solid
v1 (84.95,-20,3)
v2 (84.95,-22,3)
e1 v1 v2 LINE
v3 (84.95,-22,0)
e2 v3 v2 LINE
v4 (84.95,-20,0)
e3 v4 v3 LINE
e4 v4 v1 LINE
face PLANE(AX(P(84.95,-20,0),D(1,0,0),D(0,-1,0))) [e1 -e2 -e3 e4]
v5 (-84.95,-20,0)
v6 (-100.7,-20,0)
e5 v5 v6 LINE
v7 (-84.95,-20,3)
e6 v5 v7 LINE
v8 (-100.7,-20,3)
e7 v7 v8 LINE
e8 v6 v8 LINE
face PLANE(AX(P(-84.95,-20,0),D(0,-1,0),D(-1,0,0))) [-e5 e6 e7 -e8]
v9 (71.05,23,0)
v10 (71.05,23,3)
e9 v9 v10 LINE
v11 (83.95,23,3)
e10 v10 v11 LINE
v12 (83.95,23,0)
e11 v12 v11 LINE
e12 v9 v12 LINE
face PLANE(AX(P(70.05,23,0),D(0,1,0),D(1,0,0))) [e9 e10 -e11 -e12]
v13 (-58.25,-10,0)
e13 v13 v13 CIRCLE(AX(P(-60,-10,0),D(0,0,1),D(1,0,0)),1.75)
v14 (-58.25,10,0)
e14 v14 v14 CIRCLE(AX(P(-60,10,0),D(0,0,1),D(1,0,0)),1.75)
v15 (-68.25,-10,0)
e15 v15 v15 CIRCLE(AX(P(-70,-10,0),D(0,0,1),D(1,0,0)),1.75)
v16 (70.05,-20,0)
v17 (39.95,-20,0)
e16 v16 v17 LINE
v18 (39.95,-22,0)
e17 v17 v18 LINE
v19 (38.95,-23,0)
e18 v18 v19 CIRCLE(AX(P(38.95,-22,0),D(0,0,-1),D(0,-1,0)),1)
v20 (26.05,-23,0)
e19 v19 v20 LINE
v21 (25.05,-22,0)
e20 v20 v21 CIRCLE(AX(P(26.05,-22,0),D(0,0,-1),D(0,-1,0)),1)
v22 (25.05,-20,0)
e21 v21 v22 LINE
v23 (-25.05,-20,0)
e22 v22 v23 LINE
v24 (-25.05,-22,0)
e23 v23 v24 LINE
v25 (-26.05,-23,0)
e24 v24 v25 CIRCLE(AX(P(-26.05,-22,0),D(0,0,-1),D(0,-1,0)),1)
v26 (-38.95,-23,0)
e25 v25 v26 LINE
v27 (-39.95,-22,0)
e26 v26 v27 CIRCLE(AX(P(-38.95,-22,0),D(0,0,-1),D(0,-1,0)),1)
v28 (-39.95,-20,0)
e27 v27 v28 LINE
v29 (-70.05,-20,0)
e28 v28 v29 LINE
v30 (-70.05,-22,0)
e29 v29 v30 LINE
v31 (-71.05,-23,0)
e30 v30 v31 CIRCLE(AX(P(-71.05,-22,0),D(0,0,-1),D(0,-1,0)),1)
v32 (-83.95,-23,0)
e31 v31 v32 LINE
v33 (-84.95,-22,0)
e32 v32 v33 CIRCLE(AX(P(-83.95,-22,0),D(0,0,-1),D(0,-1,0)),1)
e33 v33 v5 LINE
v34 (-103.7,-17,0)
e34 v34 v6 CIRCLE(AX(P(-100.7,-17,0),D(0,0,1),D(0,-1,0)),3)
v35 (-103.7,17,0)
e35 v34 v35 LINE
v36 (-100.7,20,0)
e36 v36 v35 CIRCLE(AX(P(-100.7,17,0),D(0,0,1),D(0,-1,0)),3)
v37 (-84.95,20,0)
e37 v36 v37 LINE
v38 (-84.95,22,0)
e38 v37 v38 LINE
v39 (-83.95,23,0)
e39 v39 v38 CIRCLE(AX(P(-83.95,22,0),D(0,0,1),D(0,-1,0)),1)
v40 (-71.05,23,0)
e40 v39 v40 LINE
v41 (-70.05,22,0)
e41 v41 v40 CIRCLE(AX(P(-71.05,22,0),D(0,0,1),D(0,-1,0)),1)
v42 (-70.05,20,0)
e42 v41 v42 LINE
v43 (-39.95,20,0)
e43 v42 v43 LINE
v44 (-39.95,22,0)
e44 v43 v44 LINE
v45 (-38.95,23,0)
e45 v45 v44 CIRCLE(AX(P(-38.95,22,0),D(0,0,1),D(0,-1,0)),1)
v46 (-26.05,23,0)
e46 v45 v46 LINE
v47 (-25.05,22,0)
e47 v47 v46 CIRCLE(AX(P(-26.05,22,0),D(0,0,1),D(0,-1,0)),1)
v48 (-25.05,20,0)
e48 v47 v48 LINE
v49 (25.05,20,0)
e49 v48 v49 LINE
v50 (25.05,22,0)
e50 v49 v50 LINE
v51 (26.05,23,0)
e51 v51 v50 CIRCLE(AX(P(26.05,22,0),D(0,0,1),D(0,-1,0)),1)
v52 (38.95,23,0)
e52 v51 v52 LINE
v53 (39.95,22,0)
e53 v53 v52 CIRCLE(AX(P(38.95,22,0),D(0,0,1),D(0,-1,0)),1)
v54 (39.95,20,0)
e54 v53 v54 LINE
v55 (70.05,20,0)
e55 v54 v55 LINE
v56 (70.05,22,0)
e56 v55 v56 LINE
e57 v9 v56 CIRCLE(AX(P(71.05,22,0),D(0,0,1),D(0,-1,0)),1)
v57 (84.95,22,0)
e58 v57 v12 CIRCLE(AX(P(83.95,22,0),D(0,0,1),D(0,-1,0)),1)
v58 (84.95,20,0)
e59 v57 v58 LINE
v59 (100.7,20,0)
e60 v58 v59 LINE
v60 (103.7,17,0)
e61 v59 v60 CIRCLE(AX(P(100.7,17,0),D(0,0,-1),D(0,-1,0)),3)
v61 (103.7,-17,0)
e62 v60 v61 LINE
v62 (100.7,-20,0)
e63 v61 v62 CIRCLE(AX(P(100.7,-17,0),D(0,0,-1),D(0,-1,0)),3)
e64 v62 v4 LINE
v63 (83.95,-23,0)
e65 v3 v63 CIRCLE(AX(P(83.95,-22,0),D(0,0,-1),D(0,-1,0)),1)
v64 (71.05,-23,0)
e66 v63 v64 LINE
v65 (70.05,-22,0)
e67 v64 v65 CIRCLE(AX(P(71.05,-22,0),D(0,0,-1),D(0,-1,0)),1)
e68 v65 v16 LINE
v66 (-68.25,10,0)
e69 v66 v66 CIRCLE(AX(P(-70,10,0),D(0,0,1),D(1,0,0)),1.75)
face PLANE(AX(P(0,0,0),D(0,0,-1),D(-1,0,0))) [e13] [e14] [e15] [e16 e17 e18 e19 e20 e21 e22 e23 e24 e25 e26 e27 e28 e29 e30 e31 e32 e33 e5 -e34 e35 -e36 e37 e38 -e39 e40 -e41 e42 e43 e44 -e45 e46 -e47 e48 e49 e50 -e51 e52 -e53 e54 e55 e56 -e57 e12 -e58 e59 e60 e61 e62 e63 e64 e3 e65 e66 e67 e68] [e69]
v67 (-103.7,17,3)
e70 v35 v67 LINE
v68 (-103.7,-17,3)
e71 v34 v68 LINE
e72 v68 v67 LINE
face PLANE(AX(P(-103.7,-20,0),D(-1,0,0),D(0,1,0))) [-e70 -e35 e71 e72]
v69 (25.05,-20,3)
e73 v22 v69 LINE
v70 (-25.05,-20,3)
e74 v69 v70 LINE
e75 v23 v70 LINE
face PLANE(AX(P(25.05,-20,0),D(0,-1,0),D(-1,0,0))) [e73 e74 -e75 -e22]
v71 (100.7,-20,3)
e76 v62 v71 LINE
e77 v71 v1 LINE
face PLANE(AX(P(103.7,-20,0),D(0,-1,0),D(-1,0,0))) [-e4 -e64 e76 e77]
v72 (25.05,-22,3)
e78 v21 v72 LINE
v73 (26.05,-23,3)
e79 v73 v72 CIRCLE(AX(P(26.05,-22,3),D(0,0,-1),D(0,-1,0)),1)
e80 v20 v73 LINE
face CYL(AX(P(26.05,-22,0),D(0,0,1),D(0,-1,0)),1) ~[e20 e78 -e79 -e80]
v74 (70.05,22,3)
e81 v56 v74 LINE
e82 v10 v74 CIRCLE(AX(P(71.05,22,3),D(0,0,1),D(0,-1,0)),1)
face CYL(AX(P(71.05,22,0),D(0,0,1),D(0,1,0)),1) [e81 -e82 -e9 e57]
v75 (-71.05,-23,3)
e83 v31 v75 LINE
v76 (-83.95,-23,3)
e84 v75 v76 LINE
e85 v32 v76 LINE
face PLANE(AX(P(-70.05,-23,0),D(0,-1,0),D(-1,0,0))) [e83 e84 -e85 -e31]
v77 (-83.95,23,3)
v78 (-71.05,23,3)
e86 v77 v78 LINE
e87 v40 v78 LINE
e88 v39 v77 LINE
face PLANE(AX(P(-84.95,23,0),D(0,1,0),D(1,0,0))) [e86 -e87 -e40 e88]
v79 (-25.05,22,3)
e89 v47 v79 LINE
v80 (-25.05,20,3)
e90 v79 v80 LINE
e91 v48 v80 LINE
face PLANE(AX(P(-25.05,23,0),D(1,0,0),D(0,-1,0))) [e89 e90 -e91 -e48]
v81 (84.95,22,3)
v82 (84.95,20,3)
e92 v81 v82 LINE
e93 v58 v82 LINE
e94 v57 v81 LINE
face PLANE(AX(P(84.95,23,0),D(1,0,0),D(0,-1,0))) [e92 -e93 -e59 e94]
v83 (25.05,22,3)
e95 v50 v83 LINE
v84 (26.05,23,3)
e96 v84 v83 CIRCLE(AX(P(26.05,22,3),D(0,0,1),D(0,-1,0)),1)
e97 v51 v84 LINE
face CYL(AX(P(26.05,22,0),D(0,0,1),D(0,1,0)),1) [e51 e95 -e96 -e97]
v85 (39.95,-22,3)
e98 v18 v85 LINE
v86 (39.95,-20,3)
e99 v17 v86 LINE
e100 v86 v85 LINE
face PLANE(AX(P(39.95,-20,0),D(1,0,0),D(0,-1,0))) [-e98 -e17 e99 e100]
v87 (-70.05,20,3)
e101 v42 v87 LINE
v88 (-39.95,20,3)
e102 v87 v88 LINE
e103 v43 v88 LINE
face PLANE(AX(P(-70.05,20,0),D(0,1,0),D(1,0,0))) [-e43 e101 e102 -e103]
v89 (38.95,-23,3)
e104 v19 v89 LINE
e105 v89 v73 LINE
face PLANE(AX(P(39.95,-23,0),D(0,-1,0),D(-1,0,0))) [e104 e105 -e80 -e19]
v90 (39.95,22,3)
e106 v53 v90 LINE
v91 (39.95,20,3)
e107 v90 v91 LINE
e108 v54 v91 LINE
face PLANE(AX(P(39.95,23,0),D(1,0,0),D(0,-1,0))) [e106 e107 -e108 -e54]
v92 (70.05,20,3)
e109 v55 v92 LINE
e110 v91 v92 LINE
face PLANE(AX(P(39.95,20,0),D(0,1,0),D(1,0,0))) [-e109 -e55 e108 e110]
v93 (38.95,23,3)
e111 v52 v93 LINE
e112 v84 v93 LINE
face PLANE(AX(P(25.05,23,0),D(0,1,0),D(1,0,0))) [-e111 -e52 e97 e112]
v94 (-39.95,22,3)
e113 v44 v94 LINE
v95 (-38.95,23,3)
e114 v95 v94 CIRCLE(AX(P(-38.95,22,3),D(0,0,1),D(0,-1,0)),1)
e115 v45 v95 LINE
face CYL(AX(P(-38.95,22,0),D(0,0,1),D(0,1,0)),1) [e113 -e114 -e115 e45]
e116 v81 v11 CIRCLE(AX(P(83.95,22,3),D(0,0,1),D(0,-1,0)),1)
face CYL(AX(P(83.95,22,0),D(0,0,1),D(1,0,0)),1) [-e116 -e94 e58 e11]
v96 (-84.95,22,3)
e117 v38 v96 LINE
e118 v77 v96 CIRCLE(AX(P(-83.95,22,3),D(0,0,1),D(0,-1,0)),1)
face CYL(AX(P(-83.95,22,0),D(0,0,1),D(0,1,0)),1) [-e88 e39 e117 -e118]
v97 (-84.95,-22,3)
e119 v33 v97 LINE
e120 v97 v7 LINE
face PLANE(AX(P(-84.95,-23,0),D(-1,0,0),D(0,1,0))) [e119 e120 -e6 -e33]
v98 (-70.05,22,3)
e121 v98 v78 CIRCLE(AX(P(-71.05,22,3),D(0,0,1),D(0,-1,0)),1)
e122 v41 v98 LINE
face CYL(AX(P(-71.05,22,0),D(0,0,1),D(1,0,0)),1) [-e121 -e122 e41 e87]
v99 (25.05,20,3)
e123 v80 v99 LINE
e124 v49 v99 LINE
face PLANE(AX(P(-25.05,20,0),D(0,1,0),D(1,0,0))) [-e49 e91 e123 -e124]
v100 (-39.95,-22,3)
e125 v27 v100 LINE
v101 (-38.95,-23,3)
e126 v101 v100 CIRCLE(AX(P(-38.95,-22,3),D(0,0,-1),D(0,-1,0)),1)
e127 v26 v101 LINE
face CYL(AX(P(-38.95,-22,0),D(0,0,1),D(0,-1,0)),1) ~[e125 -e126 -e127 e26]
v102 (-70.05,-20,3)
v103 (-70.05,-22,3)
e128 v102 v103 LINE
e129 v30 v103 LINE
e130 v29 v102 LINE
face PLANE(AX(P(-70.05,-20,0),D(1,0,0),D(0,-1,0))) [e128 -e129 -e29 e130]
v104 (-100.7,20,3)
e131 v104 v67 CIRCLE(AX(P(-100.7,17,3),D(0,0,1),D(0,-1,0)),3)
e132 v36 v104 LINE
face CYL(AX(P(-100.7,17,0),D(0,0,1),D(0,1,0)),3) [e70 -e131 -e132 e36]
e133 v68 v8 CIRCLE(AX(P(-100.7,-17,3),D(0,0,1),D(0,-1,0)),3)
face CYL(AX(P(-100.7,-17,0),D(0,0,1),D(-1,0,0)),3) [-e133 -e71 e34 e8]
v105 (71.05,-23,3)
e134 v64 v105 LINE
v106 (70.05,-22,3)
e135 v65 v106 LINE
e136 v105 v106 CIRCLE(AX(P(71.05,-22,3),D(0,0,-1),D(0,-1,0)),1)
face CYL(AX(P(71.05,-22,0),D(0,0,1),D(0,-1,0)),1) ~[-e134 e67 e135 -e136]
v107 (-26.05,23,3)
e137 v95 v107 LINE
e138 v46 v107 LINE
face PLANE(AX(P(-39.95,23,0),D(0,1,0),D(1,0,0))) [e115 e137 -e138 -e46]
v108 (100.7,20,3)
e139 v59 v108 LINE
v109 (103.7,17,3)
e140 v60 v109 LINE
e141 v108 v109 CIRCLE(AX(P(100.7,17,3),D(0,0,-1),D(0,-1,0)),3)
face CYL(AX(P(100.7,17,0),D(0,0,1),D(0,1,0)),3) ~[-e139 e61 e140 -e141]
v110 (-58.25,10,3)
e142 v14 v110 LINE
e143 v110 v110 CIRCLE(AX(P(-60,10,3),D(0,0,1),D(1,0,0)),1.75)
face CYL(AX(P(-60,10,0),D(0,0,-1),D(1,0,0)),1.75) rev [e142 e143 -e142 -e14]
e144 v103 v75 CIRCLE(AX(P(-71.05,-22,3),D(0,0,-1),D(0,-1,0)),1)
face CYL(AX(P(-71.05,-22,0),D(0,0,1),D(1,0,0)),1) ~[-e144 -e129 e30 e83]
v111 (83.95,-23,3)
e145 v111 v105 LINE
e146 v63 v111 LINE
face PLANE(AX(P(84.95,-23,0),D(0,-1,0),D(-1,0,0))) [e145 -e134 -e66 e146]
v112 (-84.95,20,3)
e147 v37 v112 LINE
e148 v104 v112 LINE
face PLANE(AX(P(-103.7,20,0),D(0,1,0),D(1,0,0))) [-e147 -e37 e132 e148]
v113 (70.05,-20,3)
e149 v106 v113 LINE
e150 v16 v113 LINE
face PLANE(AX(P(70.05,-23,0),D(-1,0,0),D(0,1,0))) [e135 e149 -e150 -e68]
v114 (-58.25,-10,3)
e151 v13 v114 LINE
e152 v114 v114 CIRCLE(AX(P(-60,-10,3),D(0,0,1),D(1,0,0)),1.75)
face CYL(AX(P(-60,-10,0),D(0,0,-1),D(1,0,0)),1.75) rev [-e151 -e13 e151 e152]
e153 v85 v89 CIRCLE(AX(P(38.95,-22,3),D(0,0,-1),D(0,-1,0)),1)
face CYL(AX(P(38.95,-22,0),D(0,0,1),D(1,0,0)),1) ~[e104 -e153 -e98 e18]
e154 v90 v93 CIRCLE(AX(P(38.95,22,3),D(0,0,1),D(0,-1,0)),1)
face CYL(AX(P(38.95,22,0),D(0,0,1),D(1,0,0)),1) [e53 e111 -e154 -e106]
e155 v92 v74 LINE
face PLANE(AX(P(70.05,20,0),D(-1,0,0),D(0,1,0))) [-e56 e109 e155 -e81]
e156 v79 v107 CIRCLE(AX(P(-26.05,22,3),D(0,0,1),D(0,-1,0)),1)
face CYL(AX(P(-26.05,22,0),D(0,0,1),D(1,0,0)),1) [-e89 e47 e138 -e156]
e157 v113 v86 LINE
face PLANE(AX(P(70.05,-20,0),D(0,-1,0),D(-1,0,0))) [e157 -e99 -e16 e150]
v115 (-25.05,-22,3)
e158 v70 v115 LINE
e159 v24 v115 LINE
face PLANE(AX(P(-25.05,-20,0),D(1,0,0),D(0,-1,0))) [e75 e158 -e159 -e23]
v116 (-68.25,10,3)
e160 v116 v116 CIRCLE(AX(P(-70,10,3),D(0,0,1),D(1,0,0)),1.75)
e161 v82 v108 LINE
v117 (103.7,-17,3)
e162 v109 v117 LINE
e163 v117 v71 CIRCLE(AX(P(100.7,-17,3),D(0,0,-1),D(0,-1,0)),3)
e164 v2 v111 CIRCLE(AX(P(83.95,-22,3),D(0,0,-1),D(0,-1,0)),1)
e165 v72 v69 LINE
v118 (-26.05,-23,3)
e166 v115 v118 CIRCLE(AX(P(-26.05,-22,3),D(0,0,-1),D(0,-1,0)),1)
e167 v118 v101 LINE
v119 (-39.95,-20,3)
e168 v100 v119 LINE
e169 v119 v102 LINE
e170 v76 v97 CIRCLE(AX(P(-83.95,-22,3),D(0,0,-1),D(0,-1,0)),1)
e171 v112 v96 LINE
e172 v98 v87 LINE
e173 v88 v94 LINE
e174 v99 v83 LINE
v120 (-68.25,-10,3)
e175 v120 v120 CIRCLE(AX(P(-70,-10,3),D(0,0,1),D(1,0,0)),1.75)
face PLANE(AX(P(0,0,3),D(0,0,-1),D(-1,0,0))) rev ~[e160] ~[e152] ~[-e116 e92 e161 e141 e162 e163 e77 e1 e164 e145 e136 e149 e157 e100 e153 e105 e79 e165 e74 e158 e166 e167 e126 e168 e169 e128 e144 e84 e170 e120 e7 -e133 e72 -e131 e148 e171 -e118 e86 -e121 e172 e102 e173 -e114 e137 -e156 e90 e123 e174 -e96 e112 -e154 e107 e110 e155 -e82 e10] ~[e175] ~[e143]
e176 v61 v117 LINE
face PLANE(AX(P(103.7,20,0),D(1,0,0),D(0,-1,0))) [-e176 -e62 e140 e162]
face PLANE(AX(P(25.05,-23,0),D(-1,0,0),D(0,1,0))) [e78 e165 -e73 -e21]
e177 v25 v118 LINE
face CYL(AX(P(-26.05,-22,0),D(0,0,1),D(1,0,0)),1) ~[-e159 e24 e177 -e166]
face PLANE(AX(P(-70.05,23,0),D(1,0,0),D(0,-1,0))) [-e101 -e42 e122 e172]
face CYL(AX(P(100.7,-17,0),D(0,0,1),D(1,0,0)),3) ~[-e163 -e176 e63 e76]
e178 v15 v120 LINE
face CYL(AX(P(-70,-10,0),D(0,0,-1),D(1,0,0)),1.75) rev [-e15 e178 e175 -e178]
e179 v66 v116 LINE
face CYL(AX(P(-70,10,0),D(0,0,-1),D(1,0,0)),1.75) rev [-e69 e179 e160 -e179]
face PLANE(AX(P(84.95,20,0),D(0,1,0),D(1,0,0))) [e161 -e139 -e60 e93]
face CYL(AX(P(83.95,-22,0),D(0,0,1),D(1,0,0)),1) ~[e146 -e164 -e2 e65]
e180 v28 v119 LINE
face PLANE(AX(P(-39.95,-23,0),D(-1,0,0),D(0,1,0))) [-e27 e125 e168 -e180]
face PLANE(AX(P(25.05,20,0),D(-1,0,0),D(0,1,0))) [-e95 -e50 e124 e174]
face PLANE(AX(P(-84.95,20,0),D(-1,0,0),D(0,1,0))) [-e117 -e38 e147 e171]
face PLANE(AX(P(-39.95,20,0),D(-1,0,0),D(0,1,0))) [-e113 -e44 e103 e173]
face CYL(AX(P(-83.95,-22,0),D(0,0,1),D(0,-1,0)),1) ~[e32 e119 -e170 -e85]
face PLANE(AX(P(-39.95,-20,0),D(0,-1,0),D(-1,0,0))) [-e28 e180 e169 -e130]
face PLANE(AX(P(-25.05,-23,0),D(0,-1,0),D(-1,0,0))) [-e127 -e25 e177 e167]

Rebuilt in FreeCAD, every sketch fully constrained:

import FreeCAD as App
import Part
import Sketcher

V = App.Vector
Q = App.Units.Quantity


def edges_at(feature, points):
    """Names of the edges that pass closest to the given points."""
    edges = feature.Shape.Edges
    near = lambda p: min(range(len(edges)), key=lambda i: edges[i].distToShape(Part.Vertex(*p))[0])
    return sorted({f"Edge{near(p) + 1}" for p in points})


def add_polygon(sketch, points):
    """Adds a closed chain of lines whose ends are joined by coincident constraints."""
    first, n = sketch.GeometryCount, len(points)
    for a, b in zip(points, points[1:] + points[:1]):
        sketch.addGeometry(Part.LineSegment(App.Vector(*a, 0), App.Vector(*b, 0)), False)
    for i in range(n):
        sketch.addConstraint(Sketcher.Constraint("Coincident", first + i, 2, first + (i + 1) % n, 1))

doc = App.newDocument("Part")
body = doc.addObject("PartDesign::Body", "Body")

sketch1 = body.newObject("Sketcher::SketchObject", "Sketch")
sketch1.AttachmentSupport = (doc.getObject("XY_Plane"), [""])
sketch1.MapMode = "FlatFace"
add_polygon(sketch1, [(40, 23), (25.1, 23), (25.1, 20), (-25.1, 20), (-25.1, 23), (-40, 23), (-40, 20), (-70, 20), (-70, 23), (-85, 23), (-85, 20), (-103.7, 20), (-103.7, -20), (-85, -20), (-85, -23), (-70, -23), (-70, -20), (-40, -20), (-40, -23), (-25.1, -23), (-25.1, -20), (25.1, -20), (25.1, -23), (40, -23), (40, -20), (70, -20), (70, -23), (85, -23), (85, -20), (103.7, -20), (103.7, 20), (85, 20), (85, 23), (70, 23), (70, 20), (40, 20)])
sketch1.addGeometry(Part.Circle(V(-60, -10, 0), V(0, 0, 1), 1.8), False)
sketch1.addGeometry(Part.Circle(V(-70, -10, 0), V(0, 0, 1), 1.8), False)
sketch1.addGeometry(Part.Circle(V(-60, 10, 0), V(0, 0, 1), 1.8), False)
sketch1.addGeometry(Part.Circle(V(-70, 10, 0), V(0, 0, 1), 1.8), False)
sketch1.addConstraint(Sketcher.Constraint("Horizontal", 0))
sketch1.addConstraint(Sketcher.Constraint("Vertical", 1))
sketch1.addConstraint(Sketcher.Constraint("Horizontal", 2))
sketch1.addConstraint(Sketcher.Constraint("Vertical", 3))
sketch1.addConstraint(Sketcher.Constraint("Horizontal", 4))
sketch1.addConstraint(Sketcher.Constraint("Vertical", 5))
sketch1.addConstraint(Sketcher.Constraint("Horizontal", 6))
sketch1.addConstraint(Sketcher.Constraint("Vertical", 7))
sketch1.addConstraint(Sketcher.Constraint("Horizontal", 8))
sketch1.addConstraint(Sketcher.Constraint("Vertical", 9))
sketch1.addConstraint(Sketcher.Constraint("Horizontal", 10))
sketch1.addConstraint(Sketcher.Constraint("Vertical", 11))
sketch1.addConstraint(Sketcher.Constraint("Horizontal", 12))
sketch1.addConstraint(Sketcher.Constraint("Vertical", 13))
sketch1.addConstraint(Sketcher.Constraint("Horizontal", 14))
sketch1.addConstraint(Sketcher.Constraint("Vertical", 15))
sketch1.addConstraint(Sketcher.Constraint("Horizontal", 16))
sketch1.addConstraint(Sketcher.Constraint("Vertical", 17))
sketch1.addConstraint(Sketcher.Constraint("Horizontal", 18))
sketch1.addConstraint(Sketcher.Constraint("Vertical", 19))
sketch1.addConstraint(Sketcher.Constraint("Horizontal", 20))
sketch1.addConstraint(Sketcher.Constraint("Vertical", 21))
sketch1.addConstraint(Sketcher.Constraint("Horizontal", 22))
sketch1.addConstraint(Sketcher.Constraint("Vertical", 23))
sketch1.addConstraint(Sketcher.Constraint("Horizontal", 24))
sketch1.addConstraint(Sketcher.Constraint("Vertical", 25))
sketch1.addConstraint(Sketcher.Constraint("Horizontal", 26))
sketch1.addConstraint(Sketcher.Constraint("Vertical", 27))
sketch1.addConstraint(Sketcher.Constraint("Horizontal", 28))
sketch1.addConstraint(Sketcher.Constraint("Vertical", 29))
sketch1.addConstraint(Sketcher.Constraint("Horizontal", 30))
sketch1.addConstraint(Sketcher.Constraint("Vertical", 31))
sketch1.addConstraint(Sketcher.Constraint("Horizontal", 32))
sketch1.addConstraint(Sketcher.Constraint("Vertical", 33))
sketch1.addConstraint(Sketcher.Constraint("Horizontal", 34))
sketch1.addConstraint(Sketcher.Constraint("Vertical", 35))
sketch1.addConstraint(Sketcher.Constraint("Equal", 36, 37))
sketch1.addConstraint(Sketcher.Constraint("Equal", 37, 38))
sketch1.addConstraint(Sketcher.Constraint("Equal", 38, 39))
sketch1.addConstraint(Sketcher.Constraint("Symmetric", 0, 2, 18, 2, -1, 1))
sketch1.addConstraint(Sketcher.Constraint("Symmetric", 2, 2, 20, 2, -1, 1))
sketch1.addConstraint(Sketcher.Constraint("Symmetric", 4, 2, 22, 2, -1, 1))
sketch1.addConstraint(Sketcher.Constraint("Symmetric", 6, 2, 24, 2, -1, 1))
sketch1.addConstraint(Sketcher.Constraint("Symmetric", 8, 2, 26, 2, -1, 1))
sketch1.addConstraint(Sketcher.Constraint("Symmetric", 10, 2, 28, 2, -1, 1))
sketch1.addConstraint(Sketcher.Constraint("Symmetric", 12, 2, 30, 2, -1, 1))
sketch1.addConstraint(Sketcher.Constraint("Symmetric", 14, 2, 32, 2, -1, 1))
sketch1.addConstraint(Sketcher.Constraint("Symmetric", 16, 2, 34, 2, -1, 1))
sketch1.addConstraint(Sketcher.Constraint("Symmetric", 0, 2, 3, 2, -2))
sketch1.addConstraint(Sketcher.Constraint("Symmetric", 16, 2, 23, 2, -2))
sketch1.addConstraint(Sketcher.Constraint("Symmetric", 14, 2, 25, 2, -2))
sketch1.addConstraint(Sketcher.Constraint("Symmetric", 12, 2, 27, 2, -2))
sketch1.addConstraint(Sketcher.Constraint("Symmetric", 36, 3, 38, 3, -1))
sketch1.addConstraint(Sketcher.Constraint("Symmetric", 37, 3, 39, 3, -1))
sketch1.addConstraint(Sketcher.Constraint("Horizontal", 36, 3, 37, 3))
sketch1.addConstraint(Sketcher.Constraint("Horizontal", 2, 2, 5, 2))
sketch1.addConstraint(Sketcher.Constraint("Horizontal", 4, 2, 7, 2))
sketch1.addConstraint(Sketcher.Constraint("Horizontal", 6, 2, 9, 2))
sketch1.addConstraint(Sketcher.Constraint("Equal", 4, 8))
sketch1.addConstraint(Sketcher.Constraint("Diameter", 36, Q("3.5 mm")))
sketch1.addConstraint(Sketcher.Constraint("DistanceY", 1, 2, 1, 1, Q("3 mm")))
sketch1.addConstraint(Sketcher.Constraint("DistanceY", 11, 2, 11, 1, Q("40 mm")))
sketch1.addConstraint(Sketcher.Constraint("DistanceX", 0, 2, 0, 1, Q("14.9 mm")))
sketch1.addConstraint(Sketcher.Constraint("DistanceX", 2, 2, 2, 1, Q("50.1 mm")))
sketch1.addConstraint(Sketcher.Constraint("DistanceX", 6, 2, 6, 1, Q("30.1 mm")))
sketch1.addConstraint(Sketcher.Constraint("DistanceX", 36, 3, -1, 1, Q("60 mm")))
sketch1.addConstraint(Sketcher.Constraint("DistanceY", 36, 3, -1, 1, Q("10 mm")))
sketch1.addConstraint(Sketcher.Constraint("DistanceX", 37, 3, -1, 1, Q("70 mm")))
sketch1.addConstraint(Sketcher.Constraint("DistanceX", 10, 2, 10, 1, Q("18.75 mm")))
pad1 = body.newObject("PartDesign::Pad", "Pad")
pad1.Profile = sketch1
pad1.Length = 3
doc.recompute()

fillet = body.newObject("PartDesign::Fillet", "Fillet")
fillet.Base = (pad1, edges_at(pad1, [
    (-103.7, 20, 1.5),
    (103.7, 20, 1.5),
    (103.7, -20, 1.5),
    (-103.7, -20, 1.5),
]))
fillet.Radius = 3
doc.recompute()

fillet2 = body.newObject("PartDesign::Fillet", "Fillet001")
fillet2.Base = (fillet, edges_at(fillet, [
    (-84.95, 23, 1.5),
    (-70.05, 23, 1.5),
    (-84.95, -23, 1.5),
    (-39.95, 23, 1.5),
    (-70.05, -23, 1.5),
    (-25.05, 23, 1.5),
    (-39.95, -23, 1.5),
    (25.05, 23, 1.5),
    (-25.05, -23, 1.5),
    (39.95, 23, 1.5),
    (25.05, -23, 1.5),
    (70.05, 23, 1.5),
    (39.95, -23, 1.5),
    (84.95, 23, 1.5),
    (70.05, -23, 1.5),
    (84.95, -23, 1.5),
]))
fillet2.Radius = 1

doc.recompute()
